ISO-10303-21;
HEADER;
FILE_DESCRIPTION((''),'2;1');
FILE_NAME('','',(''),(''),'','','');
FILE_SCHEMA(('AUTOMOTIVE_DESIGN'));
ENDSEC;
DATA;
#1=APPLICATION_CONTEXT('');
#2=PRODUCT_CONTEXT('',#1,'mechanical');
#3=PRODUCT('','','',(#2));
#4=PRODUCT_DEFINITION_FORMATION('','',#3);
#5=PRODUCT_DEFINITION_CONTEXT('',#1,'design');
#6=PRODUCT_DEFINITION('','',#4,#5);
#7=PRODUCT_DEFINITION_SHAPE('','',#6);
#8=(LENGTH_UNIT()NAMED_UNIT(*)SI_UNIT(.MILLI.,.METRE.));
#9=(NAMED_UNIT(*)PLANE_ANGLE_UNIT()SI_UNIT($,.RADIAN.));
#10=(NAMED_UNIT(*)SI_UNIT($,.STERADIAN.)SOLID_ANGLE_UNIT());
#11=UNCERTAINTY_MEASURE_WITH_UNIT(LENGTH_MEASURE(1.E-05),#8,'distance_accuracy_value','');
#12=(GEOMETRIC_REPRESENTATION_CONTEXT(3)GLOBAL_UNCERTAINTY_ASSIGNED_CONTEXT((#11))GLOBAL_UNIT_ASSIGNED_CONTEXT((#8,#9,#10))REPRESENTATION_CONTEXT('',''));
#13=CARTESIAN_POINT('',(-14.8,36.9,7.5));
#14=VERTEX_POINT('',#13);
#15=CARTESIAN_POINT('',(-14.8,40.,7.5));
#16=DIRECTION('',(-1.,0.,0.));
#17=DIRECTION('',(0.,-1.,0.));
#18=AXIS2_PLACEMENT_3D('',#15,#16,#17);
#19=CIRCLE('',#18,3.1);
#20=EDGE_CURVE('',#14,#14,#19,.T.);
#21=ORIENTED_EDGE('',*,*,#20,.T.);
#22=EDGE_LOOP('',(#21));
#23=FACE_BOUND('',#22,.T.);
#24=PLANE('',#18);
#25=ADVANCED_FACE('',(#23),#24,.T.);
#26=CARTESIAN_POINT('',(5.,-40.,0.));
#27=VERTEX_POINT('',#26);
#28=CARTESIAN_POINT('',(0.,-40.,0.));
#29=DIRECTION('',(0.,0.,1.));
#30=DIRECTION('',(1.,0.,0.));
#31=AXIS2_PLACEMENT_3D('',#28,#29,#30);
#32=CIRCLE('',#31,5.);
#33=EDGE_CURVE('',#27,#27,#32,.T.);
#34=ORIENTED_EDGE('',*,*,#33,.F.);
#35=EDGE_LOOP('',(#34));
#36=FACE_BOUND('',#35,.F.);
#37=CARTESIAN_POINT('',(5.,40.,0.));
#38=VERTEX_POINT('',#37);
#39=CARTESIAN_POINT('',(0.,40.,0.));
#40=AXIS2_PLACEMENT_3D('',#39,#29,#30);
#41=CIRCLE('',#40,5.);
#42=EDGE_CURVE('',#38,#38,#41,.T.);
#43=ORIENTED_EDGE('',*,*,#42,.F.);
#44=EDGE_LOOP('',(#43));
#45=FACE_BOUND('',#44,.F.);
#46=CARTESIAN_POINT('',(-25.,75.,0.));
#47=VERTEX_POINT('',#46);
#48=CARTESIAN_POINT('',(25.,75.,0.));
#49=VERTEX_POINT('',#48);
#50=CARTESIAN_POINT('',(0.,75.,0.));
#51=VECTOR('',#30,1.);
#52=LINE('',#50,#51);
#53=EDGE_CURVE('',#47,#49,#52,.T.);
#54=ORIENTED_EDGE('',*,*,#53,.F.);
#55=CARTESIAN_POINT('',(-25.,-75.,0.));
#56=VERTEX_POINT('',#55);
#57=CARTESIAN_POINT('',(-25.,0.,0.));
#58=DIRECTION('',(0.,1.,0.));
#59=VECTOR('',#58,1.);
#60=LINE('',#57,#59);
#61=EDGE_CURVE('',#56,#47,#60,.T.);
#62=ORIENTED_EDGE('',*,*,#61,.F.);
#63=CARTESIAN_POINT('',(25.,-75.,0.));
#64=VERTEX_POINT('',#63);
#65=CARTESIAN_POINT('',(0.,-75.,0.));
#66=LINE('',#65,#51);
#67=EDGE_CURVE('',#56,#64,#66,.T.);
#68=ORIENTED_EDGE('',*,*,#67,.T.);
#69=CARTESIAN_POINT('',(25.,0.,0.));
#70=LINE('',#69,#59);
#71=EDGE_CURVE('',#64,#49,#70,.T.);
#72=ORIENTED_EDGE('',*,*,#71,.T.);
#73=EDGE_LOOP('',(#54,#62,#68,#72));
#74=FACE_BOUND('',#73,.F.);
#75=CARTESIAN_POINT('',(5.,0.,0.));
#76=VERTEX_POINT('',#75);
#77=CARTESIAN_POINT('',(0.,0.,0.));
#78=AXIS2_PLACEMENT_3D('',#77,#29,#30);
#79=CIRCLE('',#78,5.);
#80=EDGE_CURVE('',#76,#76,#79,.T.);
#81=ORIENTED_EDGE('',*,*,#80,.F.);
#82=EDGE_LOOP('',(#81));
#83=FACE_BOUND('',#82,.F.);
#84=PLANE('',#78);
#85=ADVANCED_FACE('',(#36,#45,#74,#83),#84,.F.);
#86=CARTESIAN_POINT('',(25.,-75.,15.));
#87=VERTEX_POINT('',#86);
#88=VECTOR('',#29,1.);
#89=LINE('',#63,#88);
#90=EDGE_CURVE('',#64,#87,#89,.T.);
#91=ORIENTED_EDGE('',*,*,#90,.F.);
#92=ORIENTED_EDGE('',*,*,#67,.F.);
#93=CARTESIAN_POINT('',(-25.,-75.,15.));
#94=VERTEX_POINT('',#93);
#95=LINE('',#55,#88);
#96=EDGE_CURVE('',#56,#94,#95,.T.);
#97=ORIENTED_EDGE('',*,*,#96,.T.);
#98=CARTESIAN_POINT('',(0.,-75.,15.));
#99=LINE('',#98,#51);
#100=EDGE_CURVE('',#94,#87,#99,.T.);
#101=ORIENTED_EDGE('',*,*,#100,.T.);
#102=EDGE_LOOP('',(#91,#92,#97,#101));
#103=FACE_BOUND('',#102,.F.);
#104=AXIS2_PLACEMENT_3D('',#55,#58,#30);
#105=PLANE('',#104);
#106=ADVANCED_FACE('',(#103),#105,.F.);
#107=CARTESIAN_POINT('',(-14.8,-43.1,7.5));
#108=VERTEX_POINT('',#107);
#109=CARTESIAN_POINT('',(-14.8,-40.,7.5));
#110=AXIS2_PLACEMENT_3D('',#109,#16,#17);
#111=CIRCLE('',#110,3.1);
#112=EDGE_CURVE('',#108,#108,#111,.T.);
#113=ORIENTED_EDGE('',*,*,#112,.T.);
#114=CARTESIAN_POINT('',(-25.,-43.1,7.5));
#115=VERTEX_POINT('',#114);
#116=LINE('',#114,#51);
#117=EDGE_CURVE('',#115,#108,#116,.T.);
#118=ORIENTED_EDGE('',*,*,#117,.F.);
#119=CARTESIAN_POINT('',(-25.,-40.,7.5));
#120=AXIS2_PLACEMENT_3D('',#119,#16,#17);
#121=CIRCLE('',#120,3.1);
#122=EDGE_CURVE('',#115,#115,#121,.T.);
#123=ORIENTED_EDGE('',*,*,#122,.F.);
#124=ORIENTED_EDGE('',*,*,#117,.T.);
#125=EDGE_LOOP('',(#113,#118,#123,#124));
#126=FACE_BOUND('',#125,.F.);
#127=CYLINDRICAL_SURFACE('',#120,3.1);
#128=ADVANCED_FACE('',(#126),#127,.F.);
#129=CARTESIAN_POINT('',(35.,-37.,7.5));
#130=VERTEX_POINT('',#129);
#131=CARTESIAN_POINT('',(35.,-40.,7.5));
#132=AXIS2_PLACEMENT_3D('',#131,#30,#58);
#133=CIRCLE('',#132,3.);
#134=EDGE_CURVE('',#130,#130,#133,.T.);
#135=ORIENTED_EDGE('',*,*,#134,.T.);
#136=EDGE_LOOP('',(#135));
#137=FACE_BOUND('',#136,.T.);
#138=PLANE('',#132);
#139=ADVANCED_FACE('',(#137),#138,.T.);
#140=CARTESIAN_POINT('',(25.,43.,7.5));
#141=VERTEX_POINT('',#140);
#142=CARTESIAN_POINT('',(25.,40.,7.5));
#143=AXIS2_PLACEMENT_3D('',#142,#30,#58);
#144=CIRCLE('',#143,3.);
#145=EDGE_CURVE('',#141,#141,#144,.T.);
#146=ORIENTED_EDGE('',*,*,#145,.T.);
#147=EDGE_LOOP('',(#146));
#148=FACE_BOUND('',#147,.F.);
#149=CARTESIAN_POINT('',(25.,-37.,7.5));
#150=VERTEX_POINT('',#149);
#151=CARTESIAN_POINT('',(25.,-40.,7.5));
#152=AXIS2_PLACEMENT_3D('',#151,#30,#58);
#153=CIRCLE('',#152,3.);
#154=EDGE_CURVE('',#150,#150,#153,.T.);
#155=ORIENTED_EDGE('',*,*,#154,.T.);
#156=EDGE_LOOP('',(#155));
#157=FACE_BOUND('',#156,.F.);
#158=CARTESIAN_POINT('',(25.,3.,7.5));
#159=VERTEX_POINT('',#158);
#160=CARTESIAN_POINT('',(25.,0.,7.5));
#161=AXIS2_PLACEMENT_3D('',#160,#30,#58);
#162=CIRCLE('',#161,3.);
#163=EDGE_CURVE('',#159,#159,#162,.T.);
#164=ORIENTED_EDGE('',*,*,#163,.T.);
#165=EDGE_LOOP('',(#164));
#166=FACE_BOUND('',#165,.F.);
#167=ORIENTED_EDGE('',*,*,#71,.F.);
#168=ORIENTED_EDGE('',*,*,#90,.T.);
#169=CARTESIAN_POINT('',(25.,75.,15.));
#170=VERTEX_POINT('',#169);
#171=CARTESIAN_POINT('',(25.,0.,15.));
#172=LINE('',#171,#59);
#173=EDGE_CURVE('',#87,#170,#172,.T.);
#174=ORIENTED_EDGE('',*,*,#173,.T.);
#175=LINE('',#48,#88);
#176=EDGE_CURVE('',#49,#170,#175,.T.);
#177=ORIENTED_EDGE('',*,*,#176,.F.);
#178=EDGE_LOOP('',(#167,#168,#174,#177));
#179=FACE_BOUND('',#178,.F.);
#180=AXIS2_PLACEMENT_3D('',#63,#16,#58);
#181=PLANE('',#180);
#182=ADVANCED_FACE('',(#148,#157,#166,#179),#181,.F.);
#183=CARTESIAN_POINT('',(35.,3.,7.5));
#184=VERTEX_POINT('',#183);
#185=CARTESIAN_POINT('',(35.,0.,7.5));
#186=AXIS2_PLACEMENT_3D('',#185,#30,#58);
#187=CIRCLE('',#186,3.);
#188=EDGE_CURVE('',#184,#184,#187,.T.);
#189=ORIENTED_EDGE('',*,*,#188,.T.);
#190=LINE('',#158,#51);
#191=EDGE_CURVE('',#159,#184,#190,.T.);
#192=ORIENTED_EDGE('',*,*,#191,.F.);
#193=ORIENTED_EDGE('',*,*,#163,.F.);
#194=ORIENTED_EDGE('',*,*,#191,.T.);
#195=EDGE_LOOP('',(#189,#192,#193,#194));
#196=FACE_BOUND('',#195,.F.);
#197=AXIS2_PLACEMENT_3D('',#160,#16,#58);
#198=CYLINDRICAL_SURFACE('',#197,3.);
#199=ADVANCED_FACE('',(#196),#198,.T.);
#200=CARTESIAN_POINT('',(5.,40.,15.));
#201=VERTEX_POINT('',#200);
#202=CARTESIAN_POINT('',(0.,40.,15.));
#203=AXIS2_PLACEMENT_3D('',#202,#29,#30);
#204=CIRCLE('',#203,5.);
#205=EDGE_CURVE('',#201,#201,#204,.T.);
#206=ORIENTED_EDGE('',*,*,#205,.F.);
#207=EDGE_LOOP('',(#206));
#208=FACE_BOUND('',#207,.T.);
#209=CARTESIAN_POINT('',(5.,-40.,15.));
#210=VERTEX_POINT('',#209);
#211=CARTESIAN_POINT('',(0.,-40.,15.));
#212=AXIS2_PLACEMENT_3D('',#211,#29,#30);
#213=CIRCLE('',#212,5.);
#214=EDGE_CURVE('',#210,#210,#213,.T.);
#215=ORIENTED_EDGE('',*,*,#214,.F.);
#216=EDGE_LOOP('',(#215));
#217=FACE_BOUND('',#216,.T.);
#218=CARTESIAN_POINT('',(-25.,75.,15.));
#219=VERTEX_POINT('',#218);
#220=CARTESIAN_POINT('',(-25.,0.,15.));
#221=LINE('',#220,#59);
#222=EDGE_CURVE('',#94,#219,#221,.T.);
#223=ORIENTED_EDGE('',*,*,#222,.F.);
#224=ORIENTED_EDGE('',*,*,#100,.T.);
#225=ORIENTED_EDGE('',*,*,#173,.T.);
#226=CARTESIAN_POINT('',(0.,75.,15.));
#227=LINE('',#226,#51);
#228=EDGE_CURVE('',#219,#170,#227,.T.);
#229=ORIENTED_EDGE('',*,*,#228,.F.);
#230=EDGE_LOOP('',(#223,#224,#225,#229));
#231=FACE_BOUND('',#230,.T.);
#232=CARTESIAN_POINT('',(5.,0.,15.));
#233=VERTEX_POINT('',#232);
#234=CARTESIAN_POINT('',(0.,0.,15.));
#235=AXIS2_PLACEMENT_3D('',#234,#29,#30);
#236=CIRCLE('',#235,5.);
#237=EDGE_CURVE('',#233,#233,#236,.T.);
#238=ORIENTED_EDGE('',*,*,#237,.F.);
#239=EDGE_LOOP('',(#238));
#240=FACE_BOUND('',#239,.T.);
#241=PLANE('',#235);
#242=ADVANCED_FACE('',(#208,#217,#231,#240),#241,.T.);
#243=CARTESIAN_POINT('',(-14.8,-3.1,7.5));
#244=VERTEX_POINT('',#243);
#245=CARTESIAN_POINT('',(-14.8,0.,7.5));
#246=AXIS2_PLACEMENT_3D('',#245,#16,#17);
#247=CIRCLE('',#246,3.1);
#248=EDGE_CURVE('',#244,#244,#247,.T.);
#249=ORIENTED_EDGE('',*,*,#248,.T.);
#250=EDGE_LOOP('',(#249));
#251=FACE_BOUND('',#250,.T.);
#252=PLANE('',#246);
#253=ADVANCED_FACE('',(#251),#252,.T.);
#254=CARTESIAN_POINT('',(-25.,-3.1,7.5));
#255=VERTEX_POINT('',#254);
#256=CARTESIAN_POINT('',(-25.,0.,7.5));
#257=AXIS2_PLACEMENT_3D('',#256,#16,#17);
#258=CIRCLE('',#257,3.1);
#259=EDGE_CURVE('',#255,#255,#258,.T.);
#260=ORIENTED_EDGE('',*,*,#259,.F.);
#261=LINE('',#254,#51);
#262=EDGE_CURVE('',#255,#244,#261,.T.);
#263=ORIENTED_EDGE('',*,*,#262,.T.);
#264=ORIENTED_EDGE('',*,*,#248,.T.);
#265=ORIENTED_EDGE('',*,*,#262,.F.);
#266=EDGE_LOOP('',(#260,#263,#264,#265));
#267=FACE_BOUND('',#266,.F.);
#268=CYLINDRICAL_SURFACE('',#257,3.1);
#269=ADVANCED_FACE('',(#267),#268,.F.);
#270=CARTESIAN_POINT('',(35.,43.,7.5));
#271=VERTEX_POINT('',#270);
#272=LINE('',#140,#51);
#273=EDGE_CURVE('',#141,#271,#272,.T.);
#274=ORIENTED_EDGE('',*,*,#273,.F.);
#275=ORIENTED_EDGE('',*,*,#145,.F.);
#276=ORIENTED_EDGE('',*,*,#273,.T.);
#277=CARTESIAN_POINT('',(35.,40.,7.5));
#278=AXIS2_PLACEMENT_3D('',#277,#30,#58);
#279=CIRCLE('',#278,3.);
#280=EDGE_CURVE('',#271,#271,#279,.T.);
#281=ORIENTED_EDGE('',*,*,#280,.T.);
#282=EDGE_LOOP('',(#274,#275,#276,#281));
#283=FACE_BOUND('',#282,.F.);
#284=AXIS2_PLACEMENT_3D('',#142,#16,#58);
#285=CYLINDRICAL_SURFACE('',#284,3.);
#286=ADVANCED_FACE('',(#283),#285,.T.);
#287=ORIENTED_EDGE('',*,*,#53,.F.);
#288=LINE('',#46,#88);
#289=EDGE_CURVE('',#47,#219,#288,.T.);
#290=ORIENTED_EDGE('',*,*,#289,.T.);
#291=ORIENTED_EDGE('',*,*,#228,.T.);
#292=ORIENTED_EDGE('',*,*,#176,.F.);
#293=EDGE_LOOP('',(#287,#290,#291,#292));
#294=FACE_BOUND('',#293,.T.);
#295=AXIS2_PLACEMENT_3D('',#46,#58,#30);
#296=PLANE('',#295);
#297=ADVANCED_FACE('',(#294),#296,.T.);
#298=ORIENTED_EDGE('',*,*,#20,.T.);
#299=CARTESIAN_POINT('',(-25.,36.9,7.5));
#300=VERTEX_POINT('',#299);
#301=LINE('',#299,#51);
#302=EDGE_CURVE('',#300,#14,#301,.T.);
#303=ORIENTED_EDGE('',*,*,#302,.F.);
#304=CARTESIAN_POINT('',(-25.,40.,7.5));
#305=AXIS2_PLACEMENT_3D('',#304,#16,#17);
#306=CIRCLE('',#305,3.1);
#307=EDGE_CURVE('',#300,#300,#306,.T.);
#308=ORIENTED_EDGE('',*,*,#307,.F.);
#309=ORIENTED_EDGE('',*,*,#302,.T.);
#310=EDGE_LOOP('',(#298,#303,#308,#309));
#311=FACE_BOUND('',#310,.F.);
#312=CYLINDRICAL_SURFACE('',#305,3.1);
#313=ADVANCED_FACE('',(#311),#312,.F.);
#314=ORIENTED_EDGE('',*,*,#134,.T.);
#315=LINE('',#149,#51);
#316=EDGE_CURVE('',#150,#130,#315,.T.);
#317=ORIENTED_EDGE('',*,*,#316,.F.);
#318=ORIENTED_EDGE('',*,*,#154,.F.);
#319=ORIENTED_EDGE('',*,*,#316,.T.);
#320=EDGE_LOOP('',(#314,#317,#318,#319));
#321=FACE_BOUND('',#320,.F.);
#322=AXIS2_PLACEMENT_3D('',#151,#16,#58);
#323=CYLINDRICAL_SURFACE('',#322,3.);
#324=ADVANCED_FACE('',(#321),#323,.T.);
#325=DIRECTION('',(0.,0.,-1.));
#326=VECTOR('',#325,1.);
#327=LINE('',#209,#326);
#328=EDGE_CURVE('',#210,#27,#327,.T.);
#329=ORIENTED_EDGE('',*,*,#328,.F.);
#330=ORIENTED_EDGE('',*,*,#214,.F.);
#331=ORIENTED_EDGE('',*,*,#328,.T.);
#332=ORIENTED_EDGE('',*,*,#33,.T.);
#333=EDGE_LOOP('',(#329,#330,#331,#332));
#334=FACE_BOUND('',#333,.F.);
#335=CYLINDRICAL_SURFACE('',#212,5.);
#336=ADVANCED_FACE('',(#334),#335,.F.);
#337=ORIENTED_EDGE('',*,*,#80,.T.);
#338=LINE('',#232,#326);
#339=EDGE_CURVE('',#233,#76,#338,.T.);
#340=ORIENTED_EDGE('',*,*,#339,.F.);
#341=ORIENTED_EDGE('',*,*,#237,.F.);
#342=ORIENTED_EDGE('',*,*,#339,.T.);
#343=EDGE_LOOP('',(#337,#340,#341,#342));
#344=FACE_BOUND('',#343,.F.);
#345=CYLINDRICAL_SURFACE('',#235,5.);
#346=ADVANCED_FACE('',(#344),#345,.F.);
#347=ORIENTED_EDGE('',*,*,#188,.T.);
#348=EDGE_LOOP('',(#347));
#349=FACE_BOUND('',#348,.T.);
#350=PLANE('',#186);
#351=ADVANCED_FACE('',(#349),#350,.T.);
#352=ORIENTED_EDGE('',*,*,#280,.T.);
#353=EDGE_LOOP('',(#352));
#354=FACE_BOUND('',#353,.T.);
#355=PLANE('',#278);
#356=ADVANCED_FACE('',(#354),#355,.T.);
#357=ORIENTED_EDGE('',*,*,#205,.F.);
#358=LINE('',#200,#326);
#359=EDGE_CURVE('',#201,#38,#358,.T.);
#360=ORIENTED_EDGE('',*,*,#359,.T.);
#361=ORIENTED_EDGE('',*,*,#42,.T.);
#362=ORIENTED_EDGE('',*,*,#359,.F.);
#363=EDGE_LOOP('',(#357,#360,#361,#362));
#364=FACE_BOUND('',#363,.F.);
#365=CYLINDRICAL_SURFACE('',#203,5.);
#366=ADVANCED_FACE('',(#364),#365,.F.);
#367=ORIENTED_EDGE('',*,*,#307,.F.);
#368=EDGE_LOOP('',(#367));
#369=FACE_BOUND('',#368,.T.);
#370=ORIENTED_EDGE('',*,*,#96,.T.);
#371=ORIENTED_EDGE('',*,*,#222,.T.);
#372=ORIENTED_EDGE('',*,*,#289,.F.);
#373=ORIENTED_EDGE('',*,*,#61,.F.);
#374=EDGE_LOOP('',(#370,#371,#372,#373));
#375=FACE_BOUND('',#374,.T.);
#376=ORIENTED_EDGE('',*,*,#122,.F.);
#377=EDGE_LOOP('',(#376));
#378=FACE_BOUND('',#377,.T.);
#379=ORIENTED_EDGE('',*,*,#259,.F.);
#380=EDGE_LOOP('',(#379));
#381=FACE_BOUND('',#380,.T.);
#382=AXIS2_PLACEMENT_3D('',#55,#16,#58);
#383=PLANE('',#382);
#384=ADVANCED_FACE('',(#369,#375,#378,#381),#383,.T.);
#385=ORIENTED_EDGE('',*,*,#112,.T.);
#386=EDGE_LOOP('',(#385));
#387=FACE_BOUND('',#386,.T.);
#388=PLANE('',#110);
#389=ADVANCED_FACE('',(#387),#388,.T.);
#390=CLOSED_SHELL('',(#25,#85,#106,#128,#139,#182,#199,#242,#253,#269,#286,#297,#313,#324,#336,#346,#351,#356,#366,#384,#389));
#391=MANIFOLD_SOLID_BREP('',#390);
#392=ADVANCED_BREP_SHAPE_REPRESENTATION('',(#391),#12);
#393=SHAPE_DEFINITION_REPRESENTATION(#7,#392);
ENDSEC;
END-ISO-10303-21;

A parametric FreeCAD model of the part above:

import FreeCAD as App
import Part
import Sketcher
from FreeCAD import Vector
Q = App.Units.Quantity


def add_polygon(sketch, points):
    """Adds a closed chain of lines whose ends are joined by coincident constraints."""
    first, n = sketch.GeometryCount, len(points)
    for a, b in zip(points, points[1:] + points[:1]):
        sketch.addGeometry(Part.LineSegment(App.Vector(*a, 0), App.Vector(*b, 0)), False)
    for i in range(n):
        sketch.addConstraint(Sketcher.Constraint("Coincident", first + i, 2, first + (i + 1) % n, 1))

doc = App.newDocument("Part")
body = doc.addObject("PartDesign::Body", "Body")

sketch1 = body.newObject("Sketcher::SketchObject", "Sketch")
sketch1.AttachmentSupport = (doc.getObject("XY_Plane"), [""])
sketch1.MapMode = "FlatFace"
add_polygon(sketch1, [(-25, 75), (-25, -75), (25, -75), (25, 75)])
sketch1.addConstraint(Sketcher.Constraint("Vertical", 0))
sketch1.addConstraint(Sketcher.Constraint("Horizontal", 1))
sketch1.addConstraint(Sketcher.Constraint("Vertical", 2))
sketch1.addConstraint(Sketcher.Constraint("Horizontal", 3))
sketch1.addConstraint(Sketcher.Constraint("Symmetric", 0, 2, 2, 2, -1, 1))
sketch1.addConstraint(Sketcher.Constraint("DistanceX", 1, 1, 1, 2, Q("50 mm")))
sketch1.addConstraint(Sketcher.Constraint("DistanceY", 0, 2, 0, 1, Q("150 mm")))
pad1 = body.newObject("PartDesign::Pad", "Pad")
pad1.Profile = sketch1
pad1.Length = 15

sketch2 = body.newObject("Sketcher::SketchObject", "Sketch001")
sketch2.AttachmentSupport = (doc.getObject("XY_Plane"), [""])
sketch2.MapMode = "FlatFace"
sketch2.AttachmentOffset = App.Placement(Vector(0, 0, 15), App.Rotation())
sketch2.addGeometry(Part.Circle(Vector(0, 40, 0), Vector(0, 0, 1), 5), False)
sketch2.addGeometry(Part.Circle(Vector(0, 0, 0), Vector(0, 0, 1), 5), False)
sketch2.addGeometry(Part.Circle(Vector(0, -40, 0), Vector(0, 0, 1), 5), False)
sketch2.addConstraint(Sketcher.Constraint("Coincident", 1, 3, -1, 1))
sketch2.addConstraint(Sketcher.Constraint("Equal", 0, 1))
sketch2.addConstraint(Sketcher.Constraint("Equal", 1, 2))
sketch2.addConstraint(Sketcher.Constraint("Symmetric", 0, 3, 2, 3, -1, 1))
sketch2.addConstraint(Sketcher.Constraint("PointOnObject", 0, 3, -2))
sketch2.addConstraint(Sketcher.Constraint("Diameter", 0, Q("10 mm")))
sketch2.addConstraint(Sketcher.Constraint("DistanceY", -1, 1, 0, 3, Q("40 mm")))
pocket1 = body.newObject("PartDesign::Pocket", "Pocket")
pocket1.Profile = sketch2
pocket1.Length = 25

sketch3 = body.newObject("Sketcher::SketchObject", "Sketch002")
sketch3.AttachmentSupport = (doc.getObject("YZ_Plane"), [""])
sketch3.MapMode = "FlatFace"
sketch3.AttachmentOffset = App.Placement(Vector(0, 0, 25), App.Rotation())
sketch3.addGeometry(Part.Circle(Vector(-40, 7.5, 0), Vector(0, 0, 1), 3), False)
sketch3.addGeometry(Part.Circle(Vector(0, 7.5, 0), Vector(0, 0, 1), 3), False)
sketch3.addGeometry(Part.Circle(Vector(40, 7.5, 0), Vector(0, 0, 1), 3), False)
sketch3.addConstraint(Sketcher.Constraint("Equal", 0, 1))
sketch3.addConstraint(Sketcher.Constraint("Equal", 1, 2))
sketch3.addConstraint(Sketcher.Constraint("Symmetric", 0, 3, 2, 3, -2))
sketch3.addConstraint(Sketcher.Constraint("PointOnObject", 1, 3, -2))
sketch3.addConstraint(Sketcher.Constraint("Horizontal", 0, 3, 1, 3))
sketch3.addConstraint(Sketcher.Constraint("Diameter", 0, Q("6 mm")))
sketch3.addConstraint(Sketcher.Constraint("DistanceX", 0, 3, -1, 1, Q("40 mm")))
sketch3.addConstraint(Sketcher.Constraint("DistanceY", -1, 1, 0, 3, Q("7.5 mm")))
pad2 = body.newObject("PartDesign::Pad", "Pad001")
pad2.Profile = sketch3
pad2.Length = 10

sketch4 = body.newObject("Sketcher::SketchObject", "Sketch003")
sketch4.AttachmentSupport = (doc.getObject("YZ_Plane"), [""])
sketch4.MapMode = "FlatFace"
sketch4.AttachmentOffset = App.Placement(Vector(0, 0, -25), App.Rotation())
sketch4.addGeometry(Part.Circle(Vector(40, 7.5, 0), Vector(0, 0, 1), 3.1), False)
sketch4.addGeometry(Part.Circle(Vector(0, 7.5, 0), Vector(0, 0, 1), 3.1), False)
sketch4.addGeometry(Part.Circle(Vector(-40, 7.5, 0), Vector(0, 0, 1), 3.1), False)
sketch4.addConstraint(Sketcher.Constraint("Equal", 0, 1))
sketch4.addConstraint(Sketcher.Constraint("Equal", 1, 2))
sketch4.addConstraint(Sketcher.Constraint("Symmetric", 0, 3, 2, 3, -2))
sketch4.addConstraint(Sketcher.Constraint("PointOnObject", 1, 3, -2))
sketch4.addConstraint(Sketcher.Constraint("Horizontal", 0, 3, 1, 3))
sketch4.addConstraint(Sketcher.Constraint("Diameter", 0, Q("6.2 mm")))
sketch4.addConstraint(Sketcher.Constraint("DistanceX", -1, 1, 0, 3, Q("40 mm")))
sketch4.addConstraint(Sketcher.Constraint("DistanceY", -1, 1, 0, 3, Q("7.5 mm")))
pocket2 = body.newObject("PartDesign::Pocket", "Pocket001")
pocket2.Profile = sketch4
pocket2.Length = 10.2
pocket2.Reversed = True

doc.recompute()
